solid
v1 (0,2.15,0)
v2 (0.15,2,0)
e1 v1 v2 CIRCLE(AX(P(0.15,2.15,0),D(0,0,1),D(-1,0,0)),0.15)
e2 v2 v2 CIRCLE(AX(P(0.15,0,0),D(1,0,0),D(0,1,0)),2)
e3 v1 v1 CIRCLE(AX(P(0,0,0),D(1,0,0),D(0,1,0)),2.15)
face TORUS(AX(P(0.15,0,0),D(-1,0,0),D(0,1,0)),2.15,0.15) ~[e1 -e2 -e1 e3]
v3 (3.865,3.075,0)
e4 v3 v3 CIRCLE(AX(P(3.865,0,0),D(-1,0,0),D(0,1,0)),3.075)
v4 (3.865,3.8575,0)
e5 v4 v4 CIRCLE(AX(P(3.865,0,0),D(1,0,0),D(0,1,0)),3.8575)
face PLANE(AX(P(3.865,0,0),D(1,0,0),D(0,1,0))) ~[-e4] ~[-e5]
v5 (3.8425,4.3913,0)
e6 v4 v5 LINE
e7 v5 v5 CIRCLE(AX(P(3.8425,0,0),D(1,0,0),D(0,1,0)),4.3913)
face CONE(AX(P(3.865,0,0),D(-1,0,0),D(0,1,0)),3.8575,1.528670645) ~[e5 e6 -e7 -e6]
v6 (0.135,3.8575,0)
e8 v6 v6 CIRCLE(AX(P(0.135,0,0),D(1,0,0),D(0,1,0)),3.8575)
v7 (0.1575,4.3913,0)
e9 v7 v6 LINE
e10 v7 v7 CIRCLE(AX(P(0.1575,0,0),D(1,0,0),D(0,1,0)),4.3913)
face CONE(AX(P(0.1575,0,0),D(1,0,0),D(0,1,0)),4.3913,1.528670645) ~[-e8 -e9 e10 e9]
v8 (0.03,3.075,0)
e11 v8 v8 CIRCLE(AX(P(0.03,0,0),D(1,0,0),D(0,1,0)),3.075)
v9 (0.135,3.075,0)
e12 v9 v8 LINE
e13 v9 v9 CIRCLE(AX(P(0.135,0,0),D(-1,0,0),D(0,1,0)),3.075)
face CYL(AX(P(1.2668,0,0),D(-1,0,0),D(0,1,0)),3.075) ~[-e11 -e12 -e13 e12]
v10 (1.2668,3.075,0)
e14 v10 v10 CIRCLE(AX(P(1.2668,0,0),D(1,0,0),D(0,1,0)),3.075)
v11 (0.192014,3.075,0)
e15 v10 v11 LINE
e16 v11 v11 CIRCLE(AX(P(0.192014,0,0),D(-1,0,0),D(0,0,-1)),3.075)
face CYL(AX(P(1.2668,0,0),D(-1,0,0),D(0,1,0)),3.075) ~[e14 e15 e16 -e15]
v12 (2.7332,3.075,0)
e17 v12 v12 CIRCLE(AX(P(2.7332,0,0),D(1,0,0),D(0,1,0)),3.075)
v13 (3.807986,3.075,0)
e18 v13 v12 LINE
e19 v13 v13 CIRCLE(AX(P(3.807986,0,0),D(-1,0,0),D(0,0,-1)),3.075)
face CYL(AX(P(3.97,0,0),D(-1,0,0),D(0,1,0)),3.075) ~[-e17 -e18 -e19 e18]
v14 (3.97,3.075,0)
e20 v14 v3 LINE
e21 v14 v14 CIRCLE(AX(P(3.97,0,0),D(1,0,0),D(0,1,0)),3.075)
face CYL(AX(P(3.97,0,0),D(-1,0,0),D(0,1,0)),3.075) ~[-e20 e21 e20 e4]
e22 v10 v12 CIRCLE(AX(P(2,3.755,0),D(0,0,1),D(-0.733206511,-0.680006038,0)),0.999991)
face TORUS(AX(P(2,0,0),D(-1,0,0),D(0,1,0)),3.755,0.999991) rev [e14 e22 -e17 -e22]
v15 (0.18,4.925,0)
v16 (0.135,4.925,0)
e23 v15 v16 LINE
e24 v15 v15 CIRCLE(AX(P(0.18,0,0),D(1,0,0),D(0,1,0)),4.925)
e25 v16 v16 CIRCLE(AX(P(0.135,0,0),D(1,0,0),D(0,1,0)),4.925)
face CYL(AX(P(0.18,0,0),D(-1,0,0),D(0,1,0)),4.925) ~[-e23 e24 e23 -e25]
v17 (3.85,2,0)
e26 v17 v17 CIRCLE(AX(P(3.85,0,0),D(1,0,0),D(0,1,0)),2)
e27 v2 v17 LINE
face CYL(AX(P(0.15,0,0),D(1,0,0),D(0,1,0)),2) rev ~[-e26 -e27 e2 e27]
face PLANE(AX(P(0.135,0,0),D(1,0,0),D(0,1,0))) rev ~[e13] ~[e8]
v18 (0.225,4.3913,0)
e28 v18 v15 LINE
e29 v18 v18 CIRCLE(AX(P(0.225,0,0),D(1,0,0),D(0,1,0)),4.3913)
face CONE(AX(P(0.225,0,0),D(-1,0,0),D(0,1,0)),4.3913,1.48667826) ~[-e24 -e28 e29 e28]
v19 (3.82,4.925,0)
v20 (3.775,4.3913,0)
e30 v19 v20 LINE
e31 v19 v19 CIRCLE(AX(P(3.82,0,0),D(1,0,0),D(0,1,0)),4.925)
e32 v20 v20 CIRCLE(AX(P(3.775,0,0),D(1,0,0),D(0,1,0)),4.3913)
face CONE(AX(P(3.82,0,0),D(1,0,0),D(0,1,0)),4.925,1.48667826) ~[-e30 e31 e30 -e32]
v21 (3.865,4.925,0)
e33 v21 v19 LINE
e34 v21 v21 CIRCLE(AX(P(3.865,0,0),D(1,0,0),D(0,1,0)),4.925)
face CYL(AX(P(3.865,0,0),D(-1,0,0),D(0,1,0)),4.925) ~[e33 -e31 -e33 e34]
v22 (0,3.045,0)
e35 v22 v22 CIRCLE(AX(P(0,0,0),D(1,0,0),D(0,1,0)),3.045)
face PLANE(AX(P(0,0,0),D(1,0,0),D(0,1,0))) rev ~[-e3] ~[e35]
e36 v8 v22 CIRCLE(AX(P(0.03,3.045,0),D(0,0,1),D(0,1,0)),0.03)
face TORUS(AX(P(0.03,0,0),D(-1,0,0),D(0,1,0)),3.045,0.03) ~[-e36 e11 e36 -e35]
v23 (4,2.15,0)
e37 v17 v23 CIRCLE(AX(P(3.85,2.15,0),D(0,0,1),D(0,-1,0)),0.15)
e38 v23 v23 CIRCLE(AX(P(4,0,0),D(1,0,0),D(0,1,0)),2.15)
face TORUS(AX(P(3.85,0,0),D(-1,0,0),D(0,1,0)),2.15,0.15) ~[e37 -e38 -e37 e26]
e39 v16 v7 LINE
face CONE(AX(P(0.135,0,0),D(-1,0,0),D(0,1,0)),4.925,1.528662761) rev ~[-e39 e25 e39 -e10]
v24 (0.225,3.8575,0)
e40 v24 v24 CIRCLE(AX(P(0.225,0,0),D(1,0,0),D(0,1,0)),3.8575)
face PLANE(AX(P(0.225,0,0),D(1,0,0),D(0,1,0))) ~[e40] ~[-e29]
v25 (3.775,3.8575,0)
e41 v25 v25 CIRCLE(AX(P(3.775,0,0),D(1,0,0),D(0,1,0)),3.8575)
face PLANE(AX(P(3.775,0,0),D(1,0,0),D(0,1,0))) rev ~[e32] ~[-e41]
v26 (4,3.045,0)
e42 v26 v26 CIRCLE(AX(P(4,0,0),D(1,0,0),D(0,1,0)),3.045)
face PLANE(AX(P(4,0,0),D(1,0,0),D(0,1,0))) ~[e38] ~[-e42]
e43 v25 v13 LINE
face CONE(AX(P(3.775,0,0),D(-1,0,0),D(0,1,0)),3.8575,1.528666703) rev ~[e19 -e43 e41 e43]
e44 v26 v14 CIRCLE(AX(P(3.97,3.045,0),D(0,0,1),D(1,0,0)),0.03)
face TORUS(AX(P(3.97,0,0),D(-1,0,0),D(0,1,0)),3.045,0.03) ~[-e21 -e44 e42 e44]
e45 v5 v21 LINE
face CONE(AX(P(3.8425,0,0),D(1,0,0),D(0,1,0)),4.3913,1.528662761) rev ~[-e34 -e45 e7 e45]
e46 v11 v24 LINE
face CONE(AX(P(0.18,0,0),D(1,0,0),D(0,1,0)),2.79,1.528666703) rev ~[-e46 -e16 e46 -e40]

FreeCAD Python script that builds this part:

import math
import FreeCAD as App
import Part
import Sketcher

V = App.Vector
Q = App.Units.Quantity


def add_polygon(sketch, points):
    """Adds a closed chain of lines whose ends are joined by coincident constraints."""
    first, n = sketch.GeometryCount, len(points)
    for a, b in zip(points, points[1:] + points[:1]):
        sketch.addGeometry(Part.LineSegment(App.Vector(*a, 0), App.Vector(*b, 0)), False)
    for i in range(n):
        sketch.addConstraint(Sketcher.Constraint("Coincident", first + i, 2, first + (i + 1) % n, 1))

doc = App.newDocument("Part")
body = doc.addObject("PartDesign::Body", "Body")

# Sketch on XY plane
sketch1 = body.newObject("Sketcher::SketchObject", "Sketch")
sketch1.AttachmentSupport = (doc.getObject("XY_Plane"), [""])
sketch1.MapMode = "FlatFace"
sketch1.addGeometry([
    Part.ArcOfCircle(Part.Circle(V(0.03, 3.045, 0), V(0, 0, 1), 0.03), math.radians(90), math.radians(180)),  # 0
    Part.LineSegment(V(0, 3.045, 0), V(0, 2.15, 0)),  # 1
    Part.ArcOfCircle(Part.Circle(V(0.15, 2.15, 0), V(0, 0, 1), 0.15), math.radians(180), math.radians(270)),  # 2
    Part.LineSegment(V(0.15, 2, 0), V(3.85, 2, 0)),  # 3
    Part.ArcOfCircle(Part.Circle(V(3.85, 2.15, 0), V(0, 0, 1), 0.15), math.radians(-90), math.radians(0)),  # 4
    Part.LineSegment(V(4, 2.15, 0), V(4, 3.045, 0)),  # 5
    Part.ArcOfCircle(Part.Circle(V(3.97, 3.045, 0), V(0, 0, 1), 0.03), math.radians(0), math.radians(90)),  # 6
    Part.LineSegment(V(3.97, 3.075, 0), V(2.733, 3.075, 0)),  # 7
    Part.ArcOfCircle(Part.Circle(V(2, 3.755, 0), V(0, 0, 1), 1), math.radians(-137), math.radians(-43)),  # 8
    Part.LineSegment(V(1.267, 3.075, 0), V(0.03, 3.075, 0)),  # 9
], False)
sketch1.addConstraint([
    Sketcher.Constraint("Tangent", 0, 2, 1, 1),
    Sketcher.Constraint("Tangent", 1, 2, 2, 1),
    Sketcher.Constraint("Tangent", 2, 2, 3, 1),
    Sketcher.Constraint("Tangent", 3, 2, 4, 1),
    Sketcher.Constraint("Tangent", 4, 2, 5, 1),
    Sketcher.Constraint("Tangent", 5, 2, 6, 1),
    Sketcher.Constraint("Tangent", 6, 2, 7, 1),
    Sketcher.Constraint("Coincident", 7, 2, 8, 2),
    Sketcher.Constraint("Coincident", 8, 1, 9, 1),
    Sketcher.Constraint("Tangent", 9, 2, 0, 1),
    Sketcher.Constraint("Vertical", 1),
    Sketcher.Constraint("Horizontal", 3),
    Sketcher.Constraint("Vertical", 5),
    Sketcher.Constraint("Horizontal", 7),
    Sketcher.Constraint("Horizontal", 9),
    Sketcher.Constraint("Equal", 2, 4),
    Sketcher.Constraint("Equal", 0, 6),
    Sketcher.Constraint("PointOnObject", 0, 2, -2),
    Sketcher.Constraint("Horizontal", 0, 3, 6, 3),
    Sketcher.Constraint("Equal", 7, 9),
    Sketcher.Constraint("Radius", 8, 1.0),
    Sketcher.Constraint("Radius", 0, 0.03),
    Sketcher.Constraint("Radius", 2, 0.15),
    Sketcher.Constraint("DistanceX", 3, 1, 3, 2, 3.7),
    Sketcher.Constraint("DistanceY", -1, 1, 2, 2, 2.0),
    Sketcher.Constraint("DistanceY", 1, 2, 1, 1, 0.895),
    Sketcher.Constraint("DistanceY", 0, 3, 8, 3, 0.71),
])
revolution = body.newObject("PartDesign::Revolution", "Revolution")
revolution.Profile = sketch1
revolution.ReferenceAxis = (sketch1, ["H_Axis"])
revolution.Angle = 360

# Sketch on XY plane
sketch2 = body.newObject("Sketcher::SketchObject", "Sketch001")
sketch2.AttachmentSupport = (doc.getObject("XY_Plane"), [""])
sketch2.MapMode = "FlatFace"
add_polygon(sketch2, [(0.18, 4.925), (0.135, 4.925), (0.158, 4.391), (0.135, 3.857), (0.135, 2.79), (0.18, 2.79), (0.225, 3.857), (0.225, 4.391)])  # lines 0-7
sketch2.addConstraint([
    Sketcher.Constraint("Horizontal", 0),
    Sketcher.Constraint("Vertical", 3),
    Sketcher.Constraint("Horizontal", 4),
    Sketcher.Constraint("Vertical", 6),
    Sketcher.Constraint("Parallel", 2, 5),
    Sketcher.Constraint("Horizontal", 2, 2, 5, 2),
    Sketcher.Constraint("Horizontal", 1, 2, 6, 2),
    Sketcher.Constraint("Vertical", 0, 2, 2, 2),
    Sketcher.Constraint("Vertical", 4, 2, 7, 2),
    Sketcher.Constraint("Equal", 1, 2),
    Sketcher.Constraint("Angle", 7, Q("94.8196 deg")),
    Sketcher.Constraint("DistanceX", 0, 2, 0, 1, 0.045),
    Sketcher.Constraint("DistanceY", -1, 1, 3, 2, 2.79),
    Sketcher.Constraint("DistanceX", -1, 1, 4, 2, 0.18),
    Sketcher.Constraint("DistanceX", 2, 2, 5, 2, 0.09),
    Sketcher.Constraint("DistanceY", 3, 2, 3, 1, 1.0675),
])
revolution2 = body.newObject("PartDesign::Revolution", "Revolution001")
revolution2.Profile = sketch2
revolution2.ReferenceAxis = (sketch2, ["H_Axis"])
revolution2.Angle = 360

# Sketch on XY plane
sketch3 = body.newObject("Sketcher::SketchObject", "Sketch002")
sketch3.AttachmentSupport = (doc.getObject("XY_Plane"), [""])
sketch3.MapMode = "FlatFace"
add_polygon(sketch3, [(3.82, 4.925), (3.775, 4.391), (3.775, 3.857), (3.82, 2.79), (3.865, 2.79), (3.865, 3.857), (3.842, 4.391), (3.865, 4.925)])  # lines 0-7
sketch3.addConstraint([
    Sketcher.Constraint("Vertical", 1),
    Sketcher.Constraint("Horizontal", 3),
    Sketcher.Constraint("Vertical", 4),
    Sketcher.Constraint("Horizontal", 7),
    Sketcher.Constraint("Parallel", 2, 5),
    Sketcher.Constraint("Horizontal", 1, 2, 4, 2),
    Sketcher.Constraint("Horizontal", 0, 2, 5, 2),
    Sketcher.Constraint("Vertical", 4, 2, 6, 2),
    Sketcher.Constraint("Vertical", 2, 2, 7, 2),
    Sketcher.Constraint("Equal", 5, 6),
    Sketcher.Constraint("Angle", 0, Q("-94.8196 deg")),
    Sketcher.Constraint("DistanceX", 3, 1, 3, 2, 0.045),
    Sketcher.Constraint("DistanceX", -1, 1, 2, 2, 3.82),
    Sketcher.Constraint("DistanceY", -1, 1, 2, 2, 2.79),
    Sketcher.Constraint("DistanceX", 1, 2, 3, 2, 0.09),
    Sketcher.Constraint("DistanceY", 4, 1, 4, 2, 1.0675),
])
revolution3 = body.newObject("PartDesign::Revolution", "Revolution002")
revolution3.Profile = sketch3
revolution3.ReferenceAxis = (sketch3, ["H_Axis"])
revolution3.Angle = 360

doc.recompute()
